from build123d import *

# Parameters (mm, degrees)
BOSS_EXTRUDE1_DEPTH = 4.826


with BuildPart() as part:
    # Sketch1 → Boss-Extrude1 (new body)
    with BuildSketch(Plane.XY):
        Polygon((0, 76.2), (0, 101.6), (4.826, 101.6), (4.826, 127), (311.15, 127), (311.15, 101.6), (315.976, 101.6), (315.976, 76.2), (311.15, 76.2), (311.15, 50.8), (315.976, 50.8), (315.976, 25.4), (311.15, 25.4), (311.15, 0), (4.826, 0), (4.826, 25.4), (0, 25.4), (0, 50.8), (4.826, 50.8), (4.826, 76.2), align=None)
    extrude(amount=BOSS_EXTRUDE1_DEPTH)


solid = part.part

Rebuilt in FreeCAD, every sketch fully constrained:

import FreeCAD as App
import Part
import Sketcher
from FreeCAD import Vector
Q = App.Units.Quantity


def add_polygon(sketch, points):
    """Adds a closed chain of lines whose ends are joined by coincident constraints."""
    first, n = sketch.GeometryCount, len(points)
    for a, b in zip(points, points[1:] + points[:1]):
        sketch.addGeometry(Part.LineSegment(App.Vector(*a, 0), App.Vector(*b, 0)), False)
    for i in range(n):
        sketch.addConstraint(Sketcher.Constraint("Coincident", first + i, 2, first + (i + 1) % n, 1))

doc = App.newDocument("Part")
body = doc.addObject("PartDesign::Body", "Body")

# Sketch on XY plane
sketch1 = doc.addObject("Sketcher::SketchObject", "Sketch")
body.addObject(sketch1)
sketch1.AttachmentSupport = (doc.XY_Plane, [""])
sketch1.MapMode = "FlatFace"
add_polygon(sketch1, [(0, 101.6), (0, 76.2), (4.8, 76.2), (4.8, 50.8), (0, 50.8), (0, 25.4), (4.8, 25.4), (4.8, 0), (311.1, 0), (311.1, 25.4), (316, 25.4), (316, 50.8), (311.1, 50.8), (311.1, 76.2), (316, 76.2), (316, 101.6), (311.1, 101.6), (311.1, 127), (4.8, 127), (4.8, 101.6)])  # lines 0-19
sketch1.addConstraint([
    Sketcher.Constraint("Vertical", 0),
    Sketcher.Constraint("Horizontal", 1),
    Sketcher.Constraint("Vertical", 2),
    Sketcher.Constraint("Horizontal", 3),
    Sketcher.Constraint("Vertical", 4),
    Sketcher.Constraint("Horizontal", 5),
    Sketcher.Constraint("Vertical", 6),
    Sketcher.Constraint("Horizontal", 7),
    Sketcher.Constraint("Vertical", 8),
    Sketcher.Constraint("Horizontal", 9),
    Sketcher.Constraint("Vertical", 10),
    Sketcher.Constraint("Horizontal", 11),
    Sketcher.Constraint("Vertical", 12),
    Sketcher.Constraint("Horizontal", 13),
    Sketcher.Constraint("Vertical", 14),
    Sketcher.Constraint("Horizontal", 15),
    Sketcher.Constraint("Vertical", 16),
    Sketcher.Constraint("Horizontal", 17),
    Sketcher.Constraint("Vertical", 18),
    Sketcher.Constraint("Horizontal", 19),
    Sketcher.Constraint("PointOnObject", 0, 2, -2),
    Sketcher.Constraint("PointOnObject", 3, 2, -2),
    Sketcher.Constraint("PointOnObject", 6, 2, -1),
    Sketcher.Constraint("Horizontal", 5, 2, 8, 2),
    Sketcher.Constraint("Horizontal", 3, 2, 10, 2),
    Sketcher.Constraint("Horizontal", 1, 2, 12, 2),
    Sketcher.Constraint("Horizontal", 15, 2, 18, 2),
    Sketcher.Constraint("Vertical", 2, 2, 5, 2),
    Sketcher.Constraint("Vertical", 8, 2, 11, 2),
    Sketcher.Constraint("Vertical", 10, 2, 13, 2),
    Sketcher.Constraint("Vertical", 12, 2, 15, 2),
    Sketcher.Constraint("Vertical", 6, 2, 17, 2),
    Sketcher.Constraint("Equal", 5, 9),
    Sketcher.Constraint("Equal", 0, 2),
    Sketcher.Constraint("Equal", 2, 4),
    Sketcher.Constraint("Equal", 4, 6),
    Sketcher.Constraint("Equal", 14, 16),
    Sketcher.Constraint("DistanceY", 0, 2, 0, 1, Q("1 in")),
    Sketcher.Constraint("DistanceX", 1, 1, 1, 2, Q("0.19 in")),
    Sketcher.Constraint("DistanceX", 7, 1, 7, 2, Q("12.06 in")),
])
pad1 = doc.addObject("PartDesign::Pad", "Pad")
body.addObject(pad1)
pad1.Profile = sketch1
pad1.Length = Q("0.19 in")

doc.recompute()
